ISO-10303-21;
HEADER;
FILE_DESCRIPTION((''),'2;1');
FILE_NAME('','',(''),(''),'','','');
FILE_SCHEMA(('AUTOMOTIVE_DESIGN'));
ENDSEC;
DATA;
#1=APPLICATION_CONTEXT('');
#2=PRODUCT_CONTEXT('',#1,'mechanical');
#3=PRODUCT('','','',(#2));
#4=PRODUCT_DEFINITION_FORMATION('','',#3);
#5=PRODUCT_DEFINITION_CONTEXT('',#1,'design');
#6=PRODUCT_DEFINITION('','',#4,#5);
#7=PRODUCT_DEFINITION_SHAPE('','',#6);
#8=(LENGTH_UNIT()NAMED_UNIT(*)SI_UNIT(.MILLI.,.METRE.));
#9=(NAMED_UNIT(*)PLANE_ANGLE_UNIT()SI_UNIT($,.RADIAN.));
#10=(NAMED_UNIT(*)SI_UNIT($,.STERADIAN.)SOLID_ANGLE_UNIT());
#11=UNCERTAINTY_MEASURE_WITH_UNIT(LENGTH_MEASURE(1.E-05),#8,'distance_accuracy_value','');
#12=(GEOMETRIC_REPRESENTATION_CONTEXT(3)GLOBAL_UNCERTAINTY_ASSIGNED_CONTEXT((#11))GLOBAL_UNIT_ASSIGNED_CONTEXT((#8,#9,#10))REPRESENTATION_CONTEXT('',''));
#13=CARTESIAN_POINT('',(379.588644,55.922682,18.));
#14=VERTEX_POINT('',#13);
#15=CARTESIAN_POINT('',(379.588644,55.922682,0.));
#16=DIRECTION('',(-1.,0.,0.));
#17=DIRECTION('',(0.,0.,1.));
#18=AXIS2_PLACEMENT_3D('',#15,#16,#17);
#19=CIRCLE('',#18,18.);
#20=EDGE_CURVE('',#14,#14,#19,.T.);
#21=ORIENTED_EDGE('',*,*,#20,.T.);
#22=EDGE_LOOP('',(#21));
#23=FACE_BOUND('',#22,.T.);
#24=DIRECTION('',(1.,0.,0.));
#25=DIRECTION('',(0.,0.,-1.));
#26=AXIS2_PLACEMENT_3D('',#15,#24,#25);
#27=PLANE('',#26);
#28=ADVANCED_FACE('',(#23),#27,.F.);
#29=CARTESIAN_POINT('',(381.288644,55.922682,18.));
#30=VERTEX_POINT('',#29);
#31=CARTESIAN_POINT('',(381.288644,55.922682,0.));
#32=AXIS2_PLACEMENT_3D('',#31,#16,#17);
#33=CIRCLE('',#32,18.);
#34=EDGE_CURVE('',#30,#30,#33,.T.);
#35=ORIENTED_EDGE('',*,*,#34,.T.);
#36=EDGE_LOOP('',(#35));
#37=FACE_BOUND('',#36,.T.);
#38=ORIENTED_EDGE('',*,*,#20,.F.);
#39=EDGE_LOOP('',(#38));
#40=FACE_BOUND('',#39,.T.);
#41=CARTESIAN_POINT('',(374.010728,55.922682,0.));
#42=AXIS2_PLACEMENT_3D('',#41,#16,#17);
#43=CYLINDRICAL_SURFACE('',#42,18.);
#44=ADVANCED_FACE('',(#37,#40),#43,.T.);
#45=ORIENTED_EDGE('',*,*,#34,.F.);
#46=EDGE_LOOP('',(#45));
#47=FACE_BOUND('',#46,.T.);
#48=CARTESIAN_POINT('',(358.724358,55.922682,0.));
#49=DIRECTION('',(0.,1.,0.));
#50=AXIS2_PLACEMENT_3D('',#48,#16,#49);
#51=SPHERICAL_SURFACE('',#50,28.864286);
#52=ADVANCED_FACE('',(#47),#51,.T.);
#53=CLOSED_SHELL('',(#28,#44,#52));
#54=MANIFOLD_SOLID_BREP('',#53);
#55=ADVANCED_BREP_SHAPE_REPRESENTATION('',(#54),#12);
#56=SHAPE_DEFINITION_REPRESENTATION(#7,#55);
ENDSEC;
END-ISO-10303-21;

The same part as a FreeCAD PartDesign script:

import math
import FreeCAD as App
import Part
import Sketcher

doc = App.newDocument("Part")
params = doc.addObject("Spreadsheet::Sheet", "Params")
for row, (alias, value) in enumerate([
    ("sketch1_width", "8 mm"),
    ("sketch1_height", "18 mm"),
    ("sketch1_width2", "1.7 mm"),
    ("revolution_angle", "360 deg"),
], start=1):
    params.set(f"A{row}", alias)
    params.set(f"B{row}", "=" + value)
    params.setAlias(f"B{row}", alias)

body = doc.addObject("PartDesign::Body", "Body")

# Sketch on XY plane
sketch1 = body.newObject("Sketcher::SketchObject", "Sketch")
sketch1.AttachmentSupport = (doc.getObject("XY_Plane"), [""])
sketch1.MapMode = "FlatFace"
sketch1.addGeometry([
    Part.LineSegment(App.Vector(379.6, 73.9, 0), App.Vector(379.6, 55.9, 0)),
    Part.LineSegment(App.Vector(379.6, 55.9, 0), App.Vector(387.6, 55.9, 0)),
    Part.ArcOfCircle(Part.Circle(App.Vector(358.7, 55.9, 0), App.Vector(0, 0, 1), 28.9), math.radians(0), math.radians(39)),
    Part.LineSegment(App.Vector(381.3, 73.9, 0), App.Vector(379.6, 73.9, 0)),
], False)
sketch1.addGeometry(Part.LineSegment(App.Vector(358.7, 55.9, 0), App.Vector(387.6, 55.9, 0)), True)  # axis
sketch1.addConstraint([
    Sketcher.Constraint("Coincident", 0, 2, 1, 1),
    Sketcher.Constraint("Coincident", 1, 2, 2, 1),
    Sketcher.Constraint("Coincident", 2, 2, 3, 1),
    Sketcher.Constraint("Coincident", 3, 2, 0, 1),
    Sketcher.Constraint("Vertical", 0),
    Sketcher.Constraint("Horizontal", 1),
    Sketcher.Constraint("Horizontal", 3),
    Sketcher.Constraint("Horizontal", 4),
    Sketcher.Constraint("Coincident", 4, 1, 2, 3),
    Sketcher.Constraint("Coincident", 4, 2, 1, 2),
    Sketcher.Constraint("DistanceX", 1, 1, 1, 2, 8.0),
    Sketcher.Constraint("DistanceY", 0, 2, 0, 1, 18.0),
    Sketcher.Constraint("DistanceX", 3, 2, 3, 1, 1.7),
    Sketcher.Constraint("DistanceX", -1, 1, 2, 3, 358.724358),
    Sketcher.Constraint("DistanceY", -1, 1, 2, 3, 55.922682),
])
sketch1.setExpression("Constraints[10]", "Params.sketch1_width")
sketch1.setExpression("Constraints[11]", "Params.sketch1_height")
sketch1.setExpression("Constraints[12]", "Params.sketch1_width2")
revolution = body.newObject("PartDesign::Revolution", "Revolution")
revolution.Profile = sketch1
revolution.ReferenceAxis = (sketch1, ["Axis0"])
revolution.setExpression("Angle", "Params.revolution_angle")

doc.recompute()
